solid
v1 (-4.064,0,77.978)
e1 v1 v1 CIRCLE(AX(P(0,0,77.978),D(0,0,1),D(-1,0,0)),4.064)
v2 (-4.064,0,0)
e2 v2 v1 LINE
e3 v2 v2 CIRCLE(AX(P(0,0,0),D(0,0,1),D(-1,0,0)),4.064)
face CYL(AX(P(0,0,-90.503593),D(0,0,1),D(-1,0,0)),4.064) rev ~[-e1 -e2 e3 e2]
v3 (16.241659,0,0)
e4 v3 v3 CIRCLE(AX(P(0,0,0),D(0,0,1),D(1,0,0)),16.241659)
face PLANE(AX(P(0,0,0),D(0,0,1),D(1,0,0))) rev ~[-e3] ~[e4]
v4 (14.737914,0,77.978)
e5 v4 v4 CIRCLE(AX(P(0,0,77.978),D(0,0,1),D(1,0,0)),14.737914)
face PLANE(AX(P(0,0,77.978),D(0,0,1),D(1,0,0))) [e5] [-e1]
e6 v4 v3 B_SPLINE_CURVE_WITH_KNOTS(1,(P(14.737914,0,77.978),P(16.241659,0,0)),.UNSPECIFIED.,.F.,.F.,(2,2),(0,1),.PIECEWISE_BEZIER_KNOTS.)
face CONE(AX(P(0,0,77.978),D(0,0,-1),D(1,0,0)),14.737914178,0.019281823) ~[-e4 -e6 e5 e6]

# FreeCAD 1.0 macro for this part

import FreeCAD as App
import Part
import Sketcher

V = App.Vector
Q = App.Units.Quantity

doc = App.newDocument("Part")
params = doc.addObject("Spreadsheet::Sheet", "Params")
for row, (alias, value) in enumerate([
    ("sketch3_diameter", "0.32 in"),
    ("hole_diameter", "0.32 in"),
], start=1):
    params.set(f"A{row}", alias)
    params.set(f"B{row}", "=" + value)
    params.setAlias(f"B{row}", alias)

body = doc.addObject("PartDesign::Body", "Body")

# Sketch on XY plane
sketch1 = doc.addObject("Sketcher::SketchObject", "Sketch")
body.addObject(sketch1)
sketch1.AttachmentSupport = (doc.XY_Plane, [""])
sketch1.MapMode = "FlatFace"
sketch1.AttachmentOffset = App.Placement(V(0, 0, 3.07 * 25.4), App.Rotation())
sketch1.addGeometry(Part.Circle(V(0, 0, 0), V(0, 0, 1), 15), False)
sketch1.addConstraint([
    Sketcher.Constraint("Coincident", 0, 3, -1, 1),
    Sketcher.Constraint("Diameter", 0, Q("29.475828 mm")),
])

# Sketch on XY plane
sketch2 = doc.addObject("Sketcher::SketchObject", "Sketch001")
body.addObject(sketch2)
sketch2.AttachmentSupport = (doc.XY_Plane, [""])
sketch2.MapMode = "FlatFace"
sketch2.addGeometry(Part.Circle(V(0, 0, 0), V(0, 0, 1), 16), False)
sketch2.addConstraint([
    Sketcher.Constraint("Coincident", 0, 3, -1, 1),
    Sketcher.Constraint("Diameter", 0, Q("32.483317 mm")),
])

additiveloft = doc.addObject("PartDesign::AdditiveLoft", "AdditiveLoft")
body.addObject(additiveloft)
additiveloft.Profile = sketch1
additiveloft.Sections = [sketch2]

# Sketch on XY plane
sketch3 = doc.addObject("Sketcher::SketchObject", "Sketch002")
body.addObject(sketch3)
sketch3.AttachmentSupport = (doc.XY_Plane, [""])
sketch3.MapMode = "FlatFace"
sketch3.addGeometry(Part.Circle(V(0, 0, 0), V(0, 0, 1), 4.1), False)
sketch3.addConstraint([
    Sketcher.Constraint("Coincident", 0, 3, -1, 1),
    Sketcher.Constraint("Diameter", 0, Q("0.32 in")),
])
sketch3.setExpression("Constraints[1]", "Params.sketch3_diameter")
doc.recompute()
hole = doc.addObject("PartDesign::Hole", "Hole")
body.addObject(hole)
hole.Profile = sketch3
hole.ThreadType = "None"
hole.setExpression("Diameter", "Params.hole_diameter")
hole.DepthType = "ThroughAll"
hole.Reversed = True

doc.recompute()
